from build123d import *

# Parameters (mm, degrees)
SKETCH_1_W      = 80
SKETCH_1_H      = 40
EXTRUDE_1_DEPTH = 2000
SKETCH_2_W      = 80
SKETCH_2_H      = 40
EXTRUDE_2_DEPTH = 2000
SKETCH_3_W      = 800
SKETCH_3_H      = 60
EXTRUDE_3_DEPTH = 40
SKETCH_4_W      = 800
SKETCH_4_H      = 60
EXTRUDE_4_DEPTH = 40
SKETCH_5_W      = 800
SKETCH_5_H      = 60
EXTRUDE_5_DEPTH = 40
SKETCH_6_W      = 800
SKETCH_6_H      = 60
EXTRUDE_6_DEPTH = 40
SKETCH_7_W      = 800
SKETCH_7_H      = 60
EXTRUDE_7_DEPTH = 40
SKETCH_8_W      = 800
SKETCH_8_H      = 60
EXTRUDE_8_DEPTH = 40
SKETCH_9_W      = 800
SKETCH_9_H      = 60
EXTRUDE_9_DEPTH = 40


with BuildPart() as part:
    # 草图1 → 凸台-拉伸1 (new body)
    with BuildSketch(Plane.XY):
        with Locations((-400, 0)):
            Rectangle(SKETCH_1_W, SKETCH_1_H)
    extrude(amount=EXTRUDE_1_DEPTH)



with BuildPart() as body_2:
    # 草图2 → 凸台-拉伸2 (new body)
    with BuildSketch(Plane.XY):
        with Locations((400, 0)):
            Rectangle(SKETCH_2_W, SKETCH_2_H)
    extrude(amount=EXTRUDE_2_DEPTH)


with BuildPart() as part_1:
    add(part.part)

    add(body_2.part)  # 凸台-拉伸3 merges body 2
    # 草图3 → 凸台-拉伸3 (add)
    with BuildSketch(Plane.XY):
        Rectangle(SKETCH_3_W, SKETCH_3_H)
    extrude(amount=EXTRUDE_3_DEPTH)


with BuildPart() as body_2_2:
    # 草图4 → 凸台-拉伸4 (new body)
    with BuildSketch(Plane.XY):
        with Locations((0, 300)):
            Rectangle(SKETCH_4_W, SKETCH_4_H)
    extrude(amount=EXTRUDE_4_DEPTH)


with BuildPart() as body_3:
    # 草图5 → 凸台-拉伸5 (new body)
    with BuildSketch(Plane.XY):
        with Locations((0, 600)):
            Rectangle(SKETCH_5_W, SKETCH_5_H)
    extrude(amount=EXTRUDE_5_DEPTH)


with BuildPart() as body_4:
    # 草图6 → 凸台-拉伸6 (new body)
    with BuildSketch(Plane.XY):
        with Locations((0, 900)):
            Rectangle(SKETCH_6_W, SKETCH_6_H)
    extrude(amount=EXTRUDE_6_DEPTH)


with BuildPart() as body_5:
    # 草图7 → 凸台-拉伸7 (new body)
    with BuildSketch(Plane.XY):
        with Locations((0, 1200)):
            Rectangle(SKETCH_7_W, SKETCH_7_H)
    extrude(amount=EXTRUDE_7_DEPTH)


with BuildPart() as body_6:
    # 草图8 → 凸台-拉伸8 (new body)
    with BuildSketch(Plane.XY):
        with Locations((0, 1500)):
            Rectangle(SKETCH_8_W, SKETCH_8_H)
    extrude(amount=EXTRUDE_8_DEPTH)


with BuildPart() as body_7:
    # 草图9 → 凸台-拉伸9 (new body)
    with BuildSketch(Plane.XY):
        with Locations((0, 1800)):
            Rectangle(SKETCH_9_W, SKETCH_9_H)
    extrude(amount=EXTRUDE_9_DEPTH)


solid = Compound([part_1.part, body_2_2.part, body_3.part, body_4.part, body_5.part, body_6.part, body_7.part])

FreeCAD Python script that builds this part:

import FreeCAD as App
import Part
import Sketcher
from FreeCAD import Vector
Q = App.Units.Quantity


def add_polygon(sketch, points):
    """Adds a closed chain of lines whose ends are joined by coincident constraints."""
    first, n = sketch.GeometryCount, len(points)
    for a, b in zip(points, points[1:] + points[:1]):
        sketch.addGeometry(Part.LineSegment(App.Vector(*a, 0), App.Vector(*b, 0)), False)
    for i in range(n):
        sketch.addConstraint(Sketcher.Constraint("Coincident", first + i, 2, first + (i + 1) % n, 1))

doc = App.newDocument("Part")
body = doc.addObject("PartDesign::Body", "Body")

# Sketch on XY plane
sketch1 = doc.addObject("Sketcher::SketchObject", "Sketch")
body.addObject(sketch1)
sketch1.AttachmentSupport = (doc.XY_Plane, [""])
sketch1.MapMode = "FlatFace"
add_polygon(sketch1, [(-440, 20), (-440, -20), (-360, -20), (-360, 20)])  # lines 0-3
sketch1.addConstraint([
    Sketcher.Constraint("Vertical", 0),
    Sketcher.Constraint("Horizontal", 1),
    Sketcher.Constraint("Vertical", 2),
    Sketcher.Constraint("Horizontal", 3),
    Sketcher.Constraint("DistanceX", 1, 1, 1, 2, Q("80 mm")),
    Sketcher.Constraint("DistanceY", 0, 2, 0, 1, Q("40 mm")),
    Sketcher.Constraint("DistanceX", 0, 2, -1, 1, Q("440 mm")),
    Sketcher.Constraint("DistanceY", 0, 2, -1, 1, Q("20 mm")),
])
pad1 = doc.addObject("PartDesign::Pad", "Pad")
body.addObject(pad1)
pad1.Profile = sketch1
pad1.Length = 2000
body2 = doc.addObject("PartDesign::Body", "Body001")

# Sketch on XY plane
sketch2 = doc.addObject("Sketcher::SketchObject", "Sketch001")
body2.addObject(sketch2)
sketch2.AttachmentSupport = (doc.getObject("XY_Plane001"), [""])
sketch2.MapMode = "FlatFace"
add_polygon(sketch2, [(360, 20), (360, -20), (440, -20), (440, 20)])  # lines 0-3
sketch2.addConstraint([
    Sketcher.Constraint("Vertical", 0),
    Sketcher.Constraint("Horizontal", 1),
    Sketcher.Constraint("Vertical", 2),
    Sketcher.Constraint("Horizontal", 3),
    Sketcher.Constraint("DistanceX", 1, 1, 1, 2, Q("80 mm")),
    Sketcher.Constraint("DistanceY", 0, 2, 0, 1, Q("40 mm")),
    Sketcher.Constraint("DistanceX", -1, 1, 0, 2, Q("360 mm")),
    Sketcher.Constraint("DistanceY", 0, 2, -1, 1, Q("20 mm")),
])
pad2 = doc.addObject("PartDesign::Pad", "Pad001")
body2.addObject(pad2)
pad2.Profile = sketch2
pad2.Length = 2000
body.AllowCompound = True
doc.recompute()

boolean = doc.addObject("PartDesign::Boolean", "Boolean")
body.addObject(boolean)
boolean.Type = "Fuse"
boolean.addObjects([body2])

# Sketch on XY plane
sketch3 = doc.addObject("Sketcher::SketchObject", "Sketch002")
body.addObject(sketch3)
sketch3.AttachmentSupport = (doc.XY_Plane, [""])
sketch3.MapMode = "FlatFace"
add_polygon(sketch3, [(-400, 30), (-400, -30), (400, -30), (400, 30)])  # lines 0-3
sketch3.addConstraint([
    Sketcher.Constraint("Vertical", 0),
    Sketcher.Constraint("Horizontal", 1),
    Sketcher.Constraint("Vertical", 2),
    Sketcher.Constraint("Horizontal", 3),
    Sketcher.Constraint("Symmetric", 0, 2, 2, 2, -1, 1),
    Sketcher.Constraint("DistanceX", 1, 1, 1, 2, Q("800 mm")),
    Sketcher.Constraint("DistanceY", 0, 2, 0, 1, Q("60 mm")),
])
pad3 = doc.addObject("PartDesign::Pad", "Pad002")
body.addObject(pad3)
pad3.Profile = sketch3
pad3.Length = 40
body3 = doc.addObject("PartDesign::Body", "Body002")

# Sketch on XY plane
sketch4 = doc.addObject("Sketcher::SketchObject", "Sketch003")
body3.addObject(sketch4)
sketch4.AttachmentSupport = (doc.getObject("XY_Plane002"), [""])
sketch4.MapMode = "FlatFace"
add_polygon(sketch4, [(-400, 330), (-400, 270), (400, 270), (400, 330)])  # lines 0-3
sketch4.addConstraint([
    Sketcher.Constraint("Vertical", 0),
    Sketcher.Constraint("Horizontal", 1),
    Sketcher.Constraint("Vertical", 2),
    Sketcher.Constraint("Horizontal", 3),
    Sketcher.Constraint("DistanceX", 1, 1, 1, 2, Q("800 mm")),
    Sketcher.Constraint("DistanceY", 0, 2, 0, 1, Q("60 mm")),
    Sketcher.Constraint("DistanceX", 0, 2, -1, 1, Q("400 mm")),
    Sketcher.Constraint("DistanceY", -1, 1, 0, 2, Q("270 mm")),
])
pad4 = doc.addObject("PartDesign::Pad", "Pad003")
body3.addObject(pad4)
pad4.Profile = sketch4
pad4.Length = 40
body4 = doc.addObject("PartDesign::Body", "Body003")

# Sketch on XY plane
sketch5 = doc.addObject("Sketcher::SketchObject", "Sketch004")
body4.addObject(sketch5)
sketch5.AttachmentSupport = (doc.getObject("XY_Plane003"), [""])
sketch5.MapMode = "FlatFace"
add_polygon(sketch5, [(-400, 630), (-400, 570), (400, 570), (400, 630)])  # lines 0-3
sketch5.addConstraint([
    Sketcher.Constraint("Vertical", 0),
    Sketcher.Constraint("Horizontal", 1),
    Sketcher.Constraint("Vertical", 2),
    Sketcher.Constraint("Horizontal", 3),
    Sketcher.Constraint("DistanceX", 1, 1, 1, 2, Q("800 mm")),
    Sketcher.Constraint("DistanceY", 0, 2, 0, 1, Q("60 mm")),
    Sketcher.Constraint("DistanceX", 0, 2, -1, 1, Q("400 mm")),
    Sketcher.Constraint("DistanceY", -1, 1, 0, 2, Q("570 mm")),
])
pad5 = doc.addObject("PartDesign::Pad", "Pad004")
body4.addObject(pad5)
pad5.Profile = sketch5
pad5.Length = 40
body5 = doc.addObject("PartDesign::Body", "Body004")

# Sketch on XY plane
sketch6 = doc.addObject("Sketcher::SketchObject", "Sketch005")
body5.addObject(sketch6)
sketch6.AttachmentSupport = (doc.getObject("XY_Plane004"), [""])
sketch6.MapMode = "FlatFace"
add_polygon(sketch6, [(-400, 930), (-400, 870), (400, 870), (400, 930)])  # lines 0-3
sketch6.addConstraint([
    Sketcher.Constraint("Vertical", 0),
    Sketcher.Constraint("Horizontal", 1),
    Sketcher.Constraint("Vertical", 2),
    Sketcher.Constraint("Horizontal", 3),
    Sketcher.Constraint("DistanceX", 1, 1, 1, 2, Q("800 mm")),
    Sketcher.Constraint("DistanceY", 0, 2, 0, 1, Q("60 mm")),
    Sketcher.Constraint("DistanceX", 0, 2, -1, 1, Q("400 mm")),
    Sketcher.Constraint("DistanceY", -1, 1, 0, 2, Q("870 mm")),
])
pad6 = doc.addObject("PartDesign::Pad", "Pad005")
body5.addObject(pad6)
pad6.Profile = sketch6
pad6.Length = 40
body6 = doc.addObject("PartDesign::Body", "Body005")

# Sketch on XY plane
sketch7 = doc.addObject("Sketcher::SketchObject", "Sketch006")
body6.addObject(sketch7)
sketch7.AttachmentSupport = (doc.getObject("XY_Plane005"), [""])
sketch7.MapMode = "FlatFace"
add_polygon(sketch7, [(-400, 1230), (-400, 1170), (400, 1170), (400, 1230)])  # lines 0-3
sketch7.addConstraint([
    Sketcher.Constraint("Vertical", 0),
    Sketcher.Constraint("Horizontal", 1),
    Sketcher.Constraint("Vertical", 2),
    Sketcher.Constraint("Horizontal", 3),
    Sketcher.Constraint("DistanceX", 1, 1, 1, 2, Q("800 mm")),
    Sketcher.Constraint("DistanceY", 0, 2, 0, 1, Q("60 mm")),
    Sketcher.Constraint("DistanceX", 0, 2, -1, 1, Q("400 mm")),
    Sketcher.Constraint("DistanceY", -1, 1, 0, 2, Q("1170 mm")),
])
pad7 = doc.addObject("PartDesign::Pad", "Pad006")
body6.addObject(pad7)
pad7.Profile = sketch7
pad7.Length = 40
body7 = doc.addObject("PartDesign::Body", "Body006")

# Sketch on XY plane
sketch8 = doc.addObject("Sketcher::SketchObject", "Sketch007")
body7.addObject(sketch8)
sketch8.AttachmentSupport = (doc.getObject("XY_Plane006"), [""])
sketch8.MapMode = "FlatFace"
add_polygon(sketch8, [(-400, 1530), (-400, 1470), (400, 1470), (400, 1530)])  # lines 0-3
sketch8.addConstraint([
    Sketcher.Constraint("Vertical", 0),
    Sketcher.Constraint("Horizontal", 1),
    Sketcher.Constraint("Vertical", 2),
    Sketcher.Constraint("Horizontal", 3),
    Sketcher.Constraint("DistanceX", 1, 1, 1, 2, Q("800 mm")),
    Sketcher.Constraint("DistanceY", 0, 2, 0, 1, Q("60 mm")),
    Sketcher.Constraint("DistanceX", 0, 2, -1, 1, Q("400 mm")),
    Sketcher.Constraint("DistanceY", -1, 1, 0, 2, Q("1470 mm")),
])
pad8 = doc.addObject("PartDesign::Pad", "Pad007")
body7.addObject(pad8)
pad8.Profile = sketch8
pad8.Length = 40
body8 = doc.addObject("PartDesign::Body", "Body007")

# Sketch on XY plane
sketch9 = doc.addObject("Sketcher::SketchObject", "Sketch008")
body8.addObject(sketch9)
sketch9.AttachmentSupport = (doc.getObject("XY_Plane007"), [""])
sketch9.MapMode = "FlatFace"
add_polygon(sketch9, [(-400, 1830), (-400, 1770), (400, 1770), (400, 1830)])  # lines 0-3
sketch9.addConstraint([
    Sketcher.Constraint("Vertical", 0),
    Sketcher.Constraint("Horizontal", 1),
    Sketcher.Constraint("Vertical", 2),
    Sketcher.Constraint("Horizontal", 3),
    Sketcher.Constraint("DistanceX", 1, 1, 1, 2, Q("800 mm")),
    Sketcher.Constraint("DistanceY", 0, 2, 0, 1, Q("60 mm")),
    Sketcher.Constraint("DistanceX", 0, 2, -1, 1, Q("400 mm")),
    Sketcher.Constraint("DistanceY", -1, 1, 0, 2, Q("1770 mm")),
])
pad9 = doc.addObject("PartDesign::Pad", "Pad008")
body8.addObject(pad9)
pad9.Profile = sketch9
pad9.Length = 40

doc.recompute()
